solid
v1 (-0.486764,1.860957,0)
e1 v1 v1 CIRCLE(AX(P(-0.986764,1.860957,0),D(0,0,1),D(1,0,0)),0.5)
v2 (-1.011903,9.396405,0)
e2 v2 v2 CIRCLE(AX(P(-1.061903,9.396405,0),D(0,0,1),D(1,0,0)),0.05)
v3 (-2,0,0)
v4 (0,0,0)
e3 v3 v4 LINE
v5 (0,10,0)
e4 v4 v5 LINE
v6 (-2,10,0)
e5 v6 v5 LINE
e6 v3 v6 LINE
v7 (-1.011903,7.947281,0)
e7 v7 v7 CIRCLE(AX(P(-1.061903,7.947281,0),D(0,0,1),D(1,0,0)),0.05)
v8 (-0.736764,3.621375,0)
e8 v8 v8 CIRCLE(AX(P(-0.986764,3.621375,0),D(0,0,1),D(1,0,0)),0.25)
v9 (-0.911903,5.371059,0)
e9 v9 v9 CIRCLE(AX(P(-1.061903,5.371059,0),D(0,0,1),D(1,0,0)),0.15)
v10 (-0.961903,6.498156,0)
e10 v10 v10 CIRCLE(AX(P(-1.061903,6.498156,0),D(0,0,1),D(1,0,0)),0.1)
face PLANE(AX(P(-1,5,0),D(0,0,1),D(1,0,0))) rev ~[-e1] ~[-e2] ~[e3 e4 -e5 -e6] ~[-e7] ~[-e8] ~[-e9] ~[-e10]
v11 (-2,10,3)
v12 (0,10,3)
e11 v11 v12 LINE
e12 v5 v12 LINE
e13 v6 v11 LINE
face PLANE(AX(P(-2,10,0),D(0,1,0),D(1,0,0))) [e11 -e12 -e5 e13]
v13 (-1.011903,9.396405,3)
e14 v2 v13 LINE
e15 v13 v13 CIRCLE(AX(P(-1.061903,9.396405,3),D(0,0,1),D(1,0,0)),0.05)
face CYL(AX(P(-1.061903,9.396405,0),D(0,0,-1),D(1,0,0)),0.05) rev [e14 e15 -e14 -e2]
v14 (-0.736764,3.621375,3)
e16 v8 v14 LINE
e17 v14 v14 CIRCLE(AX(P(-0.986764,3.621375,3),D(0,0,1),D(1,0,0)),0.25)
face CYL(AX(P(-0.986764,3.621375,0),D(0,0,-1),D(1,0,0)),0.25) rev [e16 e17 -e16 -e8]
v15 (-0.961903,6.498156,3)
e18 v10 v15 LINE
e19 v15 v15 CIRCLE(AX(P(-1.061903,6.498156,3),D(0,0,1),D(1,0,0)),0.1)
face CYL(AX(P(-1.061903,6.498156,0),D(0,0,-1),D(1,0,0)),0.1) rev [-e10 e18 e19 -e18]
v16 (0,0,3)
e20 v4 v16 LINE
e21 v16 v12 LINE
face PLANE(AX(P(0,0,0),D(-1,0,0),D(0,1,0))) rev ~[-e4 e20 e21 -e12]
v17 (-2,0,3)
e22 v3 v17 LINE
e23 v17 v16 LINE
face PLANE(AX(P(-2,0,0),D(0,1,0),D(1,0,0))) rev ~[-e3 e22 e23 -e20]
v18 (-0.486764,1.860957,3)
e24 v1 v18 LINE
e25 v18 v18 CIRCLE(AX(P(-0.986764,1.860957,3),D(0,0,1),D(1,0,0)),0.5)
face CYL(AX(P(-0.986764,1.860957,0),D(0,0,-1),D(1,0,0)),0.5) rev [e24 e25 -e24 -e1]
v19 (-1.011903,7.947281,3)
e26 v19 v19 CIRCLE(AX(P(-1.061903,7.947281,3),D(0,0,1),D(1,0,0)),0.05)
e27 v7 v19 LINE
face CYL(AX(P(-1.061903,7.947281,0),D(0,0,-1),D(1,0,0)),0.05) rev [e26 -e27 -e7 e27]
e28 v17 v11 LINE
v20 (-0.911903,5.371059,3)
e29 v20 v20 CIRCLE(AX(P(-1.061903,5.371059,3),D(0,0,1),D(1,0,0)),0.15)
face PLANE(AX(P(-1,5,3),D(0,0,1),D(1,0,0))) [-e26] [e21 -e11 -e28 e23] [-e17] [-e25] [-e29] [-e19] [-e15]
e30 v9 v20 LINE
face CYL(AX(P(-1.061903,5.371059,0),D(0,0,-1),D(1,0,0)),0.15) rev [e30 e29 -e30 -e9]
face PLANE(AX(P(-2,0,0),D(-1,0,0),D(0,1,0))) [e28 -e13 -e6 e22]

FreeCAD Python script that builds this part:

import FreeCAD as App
import Part
import Sketcher
from FreeCAD import Vector


def add_polygon(sketch, points):
    """Adds a closed chain of lines whose ends are joined by coincident constraints."""
    first, n = sketch.GeometryCount, len(points)
    for a, b in zip(points, points[1:] + points[:1]):
        sketch.addGeometry(Part.LineSegment(App.Vector(*a, 0), App.Vector(*b, 0)), False)
    for i in range(n):
        sketch.addConstraint(Sketcher.Constraint("Coincident", first + i, 2, first + (i + 1) % n, 1))

doc = App.newDocument("Part")
body = doc.addObject("PartDesign::Body", "Body")

sketch1 = body.newObject("Sketcher::SketchObject", "Sketch")
sketch1.AttachmentSupport = (doc.getObject("XY_Plane"), [""])
sketch1.MapMode = "FlatFace"
add_polygon(sketch1, [(-2, 10), (-2, 0), (0, 0), (0, 10)])
sketch1.addGeometry(Part.Circle(Vector(-1.06, 5.37, 0), Vector(0, 0, 1), 0.15), False)
sketch1.addGeometry(Part.Circle(Vector(-0.99, 1.86, 0), Vector(0, 0, 1), 0.5), False)
sketch1.addGeometry(Part.Circle(Vector(-0.99, 3.62, 0), Vector(0, 0, 1), 0.25), False)
sketch1.addGeometry(Part.Circle(Vector(-1.06, 6.5, 0), Vector(0, 0, 1), 0.1), False)
sketch1.addGeometry(Part.Circle(Vector(-1.06, 7.95, 0), Vector(0, 0, 1), 0.05), False)
sketch1.addGeometry(Part.Circle(Vector(-1.06, 9.4, 0), Vector(0, 0, 1), 0.05), False)
sketch1.addConstraint(Sketcher.Constraint("Vertical", 0))
sketch1.addConstraint(Sketcher.Constraint("Horizontal", 1))
sketch1.addConstraint(Sketcher.Constraint("Vertical", 2))
sketch1.addConstraint(Sketcher.Constraint("Horizontal", 3))
sketch1.addConstraint(Sketcher.Constraint("Coincident", 1, 2, -1, 1))
sketch1.addConstraint(Sketcher.Constraint("Equal", 8, 9))
sketch1.addConstraint(Sketcher.Constraint("Vertical", 5, 3, 6, 3))
sketch1.addConstraint(Sketcher.Constraint("Vertical", 4, 3, 7, 3))
sketch1.addConstraint(Sketcher.Constraint("Vertical", 7, 3, 8, 3))
sketch1.addConstraint(Sketcher.Constraint("Vertical", 8, 3, 9, 3))
sketch1.addConstraint(Sketcher.Constraint("Diameter", 5, 1.0))
sketch1.addConstraint(Sketcher.Constraint("Diameter", 4, 0.3))
sketch1.addConstraint(Sketcher.Constraint("Diameter", 6, 0.5))
sketch1.addConstraint(Sketcher.Constraint("Diameter", 7, 0.2))
sketch1.addConstraint(Sketcher.Constraint("Diameter", 8, 0.1))
sketch1.addConstraint(Sketcher.Constraint("DistanceX", 1, 1, 1, 2, 2.0))
sketch1.addConstraint(Sketcher.Constraint("DistanceY", 0, 2, 0, 1, 10.0))
sketch1.addConstraint(Sketcher.Constraint("DistanceY", 5, 3, 4, 3, 3.510102))
sketch1.addConstraint(Sketcher.Constraint("DistanceY", 5, 3, 7, 3, 4.637199))
sketch1.addConstraint(Sketcher.Constraint("DistanceY", -1, 1, 4, 3, 5.371059))
sketch1.addConstraint(Sketcher.Constraint("DistanceY", -1, 1, 8, 3, 7.947281))
sketch1.addConstraint(Sketcher.Constraint("DistanceX", 4, 3, 5, 3, 0.075139))
sketch1.addConstraint(Sketcher.Constraint("DistanceY", 6, 3, 7, 3, 2.876781))
sketch1.addConstraint(Sketcher.Constraint("DistanceY", 7, 3, 9, 3, 2.898249))
sketch1.addConstraint(Sketcher.Constraint("DistanceX", 4, 3, -1, 1, 1.061903))
pad1 = body.newObject("PartDesign::Pad", "Pad")
pad1.Profile = sketch1
pad1.Length = 3

doc.recompute()
